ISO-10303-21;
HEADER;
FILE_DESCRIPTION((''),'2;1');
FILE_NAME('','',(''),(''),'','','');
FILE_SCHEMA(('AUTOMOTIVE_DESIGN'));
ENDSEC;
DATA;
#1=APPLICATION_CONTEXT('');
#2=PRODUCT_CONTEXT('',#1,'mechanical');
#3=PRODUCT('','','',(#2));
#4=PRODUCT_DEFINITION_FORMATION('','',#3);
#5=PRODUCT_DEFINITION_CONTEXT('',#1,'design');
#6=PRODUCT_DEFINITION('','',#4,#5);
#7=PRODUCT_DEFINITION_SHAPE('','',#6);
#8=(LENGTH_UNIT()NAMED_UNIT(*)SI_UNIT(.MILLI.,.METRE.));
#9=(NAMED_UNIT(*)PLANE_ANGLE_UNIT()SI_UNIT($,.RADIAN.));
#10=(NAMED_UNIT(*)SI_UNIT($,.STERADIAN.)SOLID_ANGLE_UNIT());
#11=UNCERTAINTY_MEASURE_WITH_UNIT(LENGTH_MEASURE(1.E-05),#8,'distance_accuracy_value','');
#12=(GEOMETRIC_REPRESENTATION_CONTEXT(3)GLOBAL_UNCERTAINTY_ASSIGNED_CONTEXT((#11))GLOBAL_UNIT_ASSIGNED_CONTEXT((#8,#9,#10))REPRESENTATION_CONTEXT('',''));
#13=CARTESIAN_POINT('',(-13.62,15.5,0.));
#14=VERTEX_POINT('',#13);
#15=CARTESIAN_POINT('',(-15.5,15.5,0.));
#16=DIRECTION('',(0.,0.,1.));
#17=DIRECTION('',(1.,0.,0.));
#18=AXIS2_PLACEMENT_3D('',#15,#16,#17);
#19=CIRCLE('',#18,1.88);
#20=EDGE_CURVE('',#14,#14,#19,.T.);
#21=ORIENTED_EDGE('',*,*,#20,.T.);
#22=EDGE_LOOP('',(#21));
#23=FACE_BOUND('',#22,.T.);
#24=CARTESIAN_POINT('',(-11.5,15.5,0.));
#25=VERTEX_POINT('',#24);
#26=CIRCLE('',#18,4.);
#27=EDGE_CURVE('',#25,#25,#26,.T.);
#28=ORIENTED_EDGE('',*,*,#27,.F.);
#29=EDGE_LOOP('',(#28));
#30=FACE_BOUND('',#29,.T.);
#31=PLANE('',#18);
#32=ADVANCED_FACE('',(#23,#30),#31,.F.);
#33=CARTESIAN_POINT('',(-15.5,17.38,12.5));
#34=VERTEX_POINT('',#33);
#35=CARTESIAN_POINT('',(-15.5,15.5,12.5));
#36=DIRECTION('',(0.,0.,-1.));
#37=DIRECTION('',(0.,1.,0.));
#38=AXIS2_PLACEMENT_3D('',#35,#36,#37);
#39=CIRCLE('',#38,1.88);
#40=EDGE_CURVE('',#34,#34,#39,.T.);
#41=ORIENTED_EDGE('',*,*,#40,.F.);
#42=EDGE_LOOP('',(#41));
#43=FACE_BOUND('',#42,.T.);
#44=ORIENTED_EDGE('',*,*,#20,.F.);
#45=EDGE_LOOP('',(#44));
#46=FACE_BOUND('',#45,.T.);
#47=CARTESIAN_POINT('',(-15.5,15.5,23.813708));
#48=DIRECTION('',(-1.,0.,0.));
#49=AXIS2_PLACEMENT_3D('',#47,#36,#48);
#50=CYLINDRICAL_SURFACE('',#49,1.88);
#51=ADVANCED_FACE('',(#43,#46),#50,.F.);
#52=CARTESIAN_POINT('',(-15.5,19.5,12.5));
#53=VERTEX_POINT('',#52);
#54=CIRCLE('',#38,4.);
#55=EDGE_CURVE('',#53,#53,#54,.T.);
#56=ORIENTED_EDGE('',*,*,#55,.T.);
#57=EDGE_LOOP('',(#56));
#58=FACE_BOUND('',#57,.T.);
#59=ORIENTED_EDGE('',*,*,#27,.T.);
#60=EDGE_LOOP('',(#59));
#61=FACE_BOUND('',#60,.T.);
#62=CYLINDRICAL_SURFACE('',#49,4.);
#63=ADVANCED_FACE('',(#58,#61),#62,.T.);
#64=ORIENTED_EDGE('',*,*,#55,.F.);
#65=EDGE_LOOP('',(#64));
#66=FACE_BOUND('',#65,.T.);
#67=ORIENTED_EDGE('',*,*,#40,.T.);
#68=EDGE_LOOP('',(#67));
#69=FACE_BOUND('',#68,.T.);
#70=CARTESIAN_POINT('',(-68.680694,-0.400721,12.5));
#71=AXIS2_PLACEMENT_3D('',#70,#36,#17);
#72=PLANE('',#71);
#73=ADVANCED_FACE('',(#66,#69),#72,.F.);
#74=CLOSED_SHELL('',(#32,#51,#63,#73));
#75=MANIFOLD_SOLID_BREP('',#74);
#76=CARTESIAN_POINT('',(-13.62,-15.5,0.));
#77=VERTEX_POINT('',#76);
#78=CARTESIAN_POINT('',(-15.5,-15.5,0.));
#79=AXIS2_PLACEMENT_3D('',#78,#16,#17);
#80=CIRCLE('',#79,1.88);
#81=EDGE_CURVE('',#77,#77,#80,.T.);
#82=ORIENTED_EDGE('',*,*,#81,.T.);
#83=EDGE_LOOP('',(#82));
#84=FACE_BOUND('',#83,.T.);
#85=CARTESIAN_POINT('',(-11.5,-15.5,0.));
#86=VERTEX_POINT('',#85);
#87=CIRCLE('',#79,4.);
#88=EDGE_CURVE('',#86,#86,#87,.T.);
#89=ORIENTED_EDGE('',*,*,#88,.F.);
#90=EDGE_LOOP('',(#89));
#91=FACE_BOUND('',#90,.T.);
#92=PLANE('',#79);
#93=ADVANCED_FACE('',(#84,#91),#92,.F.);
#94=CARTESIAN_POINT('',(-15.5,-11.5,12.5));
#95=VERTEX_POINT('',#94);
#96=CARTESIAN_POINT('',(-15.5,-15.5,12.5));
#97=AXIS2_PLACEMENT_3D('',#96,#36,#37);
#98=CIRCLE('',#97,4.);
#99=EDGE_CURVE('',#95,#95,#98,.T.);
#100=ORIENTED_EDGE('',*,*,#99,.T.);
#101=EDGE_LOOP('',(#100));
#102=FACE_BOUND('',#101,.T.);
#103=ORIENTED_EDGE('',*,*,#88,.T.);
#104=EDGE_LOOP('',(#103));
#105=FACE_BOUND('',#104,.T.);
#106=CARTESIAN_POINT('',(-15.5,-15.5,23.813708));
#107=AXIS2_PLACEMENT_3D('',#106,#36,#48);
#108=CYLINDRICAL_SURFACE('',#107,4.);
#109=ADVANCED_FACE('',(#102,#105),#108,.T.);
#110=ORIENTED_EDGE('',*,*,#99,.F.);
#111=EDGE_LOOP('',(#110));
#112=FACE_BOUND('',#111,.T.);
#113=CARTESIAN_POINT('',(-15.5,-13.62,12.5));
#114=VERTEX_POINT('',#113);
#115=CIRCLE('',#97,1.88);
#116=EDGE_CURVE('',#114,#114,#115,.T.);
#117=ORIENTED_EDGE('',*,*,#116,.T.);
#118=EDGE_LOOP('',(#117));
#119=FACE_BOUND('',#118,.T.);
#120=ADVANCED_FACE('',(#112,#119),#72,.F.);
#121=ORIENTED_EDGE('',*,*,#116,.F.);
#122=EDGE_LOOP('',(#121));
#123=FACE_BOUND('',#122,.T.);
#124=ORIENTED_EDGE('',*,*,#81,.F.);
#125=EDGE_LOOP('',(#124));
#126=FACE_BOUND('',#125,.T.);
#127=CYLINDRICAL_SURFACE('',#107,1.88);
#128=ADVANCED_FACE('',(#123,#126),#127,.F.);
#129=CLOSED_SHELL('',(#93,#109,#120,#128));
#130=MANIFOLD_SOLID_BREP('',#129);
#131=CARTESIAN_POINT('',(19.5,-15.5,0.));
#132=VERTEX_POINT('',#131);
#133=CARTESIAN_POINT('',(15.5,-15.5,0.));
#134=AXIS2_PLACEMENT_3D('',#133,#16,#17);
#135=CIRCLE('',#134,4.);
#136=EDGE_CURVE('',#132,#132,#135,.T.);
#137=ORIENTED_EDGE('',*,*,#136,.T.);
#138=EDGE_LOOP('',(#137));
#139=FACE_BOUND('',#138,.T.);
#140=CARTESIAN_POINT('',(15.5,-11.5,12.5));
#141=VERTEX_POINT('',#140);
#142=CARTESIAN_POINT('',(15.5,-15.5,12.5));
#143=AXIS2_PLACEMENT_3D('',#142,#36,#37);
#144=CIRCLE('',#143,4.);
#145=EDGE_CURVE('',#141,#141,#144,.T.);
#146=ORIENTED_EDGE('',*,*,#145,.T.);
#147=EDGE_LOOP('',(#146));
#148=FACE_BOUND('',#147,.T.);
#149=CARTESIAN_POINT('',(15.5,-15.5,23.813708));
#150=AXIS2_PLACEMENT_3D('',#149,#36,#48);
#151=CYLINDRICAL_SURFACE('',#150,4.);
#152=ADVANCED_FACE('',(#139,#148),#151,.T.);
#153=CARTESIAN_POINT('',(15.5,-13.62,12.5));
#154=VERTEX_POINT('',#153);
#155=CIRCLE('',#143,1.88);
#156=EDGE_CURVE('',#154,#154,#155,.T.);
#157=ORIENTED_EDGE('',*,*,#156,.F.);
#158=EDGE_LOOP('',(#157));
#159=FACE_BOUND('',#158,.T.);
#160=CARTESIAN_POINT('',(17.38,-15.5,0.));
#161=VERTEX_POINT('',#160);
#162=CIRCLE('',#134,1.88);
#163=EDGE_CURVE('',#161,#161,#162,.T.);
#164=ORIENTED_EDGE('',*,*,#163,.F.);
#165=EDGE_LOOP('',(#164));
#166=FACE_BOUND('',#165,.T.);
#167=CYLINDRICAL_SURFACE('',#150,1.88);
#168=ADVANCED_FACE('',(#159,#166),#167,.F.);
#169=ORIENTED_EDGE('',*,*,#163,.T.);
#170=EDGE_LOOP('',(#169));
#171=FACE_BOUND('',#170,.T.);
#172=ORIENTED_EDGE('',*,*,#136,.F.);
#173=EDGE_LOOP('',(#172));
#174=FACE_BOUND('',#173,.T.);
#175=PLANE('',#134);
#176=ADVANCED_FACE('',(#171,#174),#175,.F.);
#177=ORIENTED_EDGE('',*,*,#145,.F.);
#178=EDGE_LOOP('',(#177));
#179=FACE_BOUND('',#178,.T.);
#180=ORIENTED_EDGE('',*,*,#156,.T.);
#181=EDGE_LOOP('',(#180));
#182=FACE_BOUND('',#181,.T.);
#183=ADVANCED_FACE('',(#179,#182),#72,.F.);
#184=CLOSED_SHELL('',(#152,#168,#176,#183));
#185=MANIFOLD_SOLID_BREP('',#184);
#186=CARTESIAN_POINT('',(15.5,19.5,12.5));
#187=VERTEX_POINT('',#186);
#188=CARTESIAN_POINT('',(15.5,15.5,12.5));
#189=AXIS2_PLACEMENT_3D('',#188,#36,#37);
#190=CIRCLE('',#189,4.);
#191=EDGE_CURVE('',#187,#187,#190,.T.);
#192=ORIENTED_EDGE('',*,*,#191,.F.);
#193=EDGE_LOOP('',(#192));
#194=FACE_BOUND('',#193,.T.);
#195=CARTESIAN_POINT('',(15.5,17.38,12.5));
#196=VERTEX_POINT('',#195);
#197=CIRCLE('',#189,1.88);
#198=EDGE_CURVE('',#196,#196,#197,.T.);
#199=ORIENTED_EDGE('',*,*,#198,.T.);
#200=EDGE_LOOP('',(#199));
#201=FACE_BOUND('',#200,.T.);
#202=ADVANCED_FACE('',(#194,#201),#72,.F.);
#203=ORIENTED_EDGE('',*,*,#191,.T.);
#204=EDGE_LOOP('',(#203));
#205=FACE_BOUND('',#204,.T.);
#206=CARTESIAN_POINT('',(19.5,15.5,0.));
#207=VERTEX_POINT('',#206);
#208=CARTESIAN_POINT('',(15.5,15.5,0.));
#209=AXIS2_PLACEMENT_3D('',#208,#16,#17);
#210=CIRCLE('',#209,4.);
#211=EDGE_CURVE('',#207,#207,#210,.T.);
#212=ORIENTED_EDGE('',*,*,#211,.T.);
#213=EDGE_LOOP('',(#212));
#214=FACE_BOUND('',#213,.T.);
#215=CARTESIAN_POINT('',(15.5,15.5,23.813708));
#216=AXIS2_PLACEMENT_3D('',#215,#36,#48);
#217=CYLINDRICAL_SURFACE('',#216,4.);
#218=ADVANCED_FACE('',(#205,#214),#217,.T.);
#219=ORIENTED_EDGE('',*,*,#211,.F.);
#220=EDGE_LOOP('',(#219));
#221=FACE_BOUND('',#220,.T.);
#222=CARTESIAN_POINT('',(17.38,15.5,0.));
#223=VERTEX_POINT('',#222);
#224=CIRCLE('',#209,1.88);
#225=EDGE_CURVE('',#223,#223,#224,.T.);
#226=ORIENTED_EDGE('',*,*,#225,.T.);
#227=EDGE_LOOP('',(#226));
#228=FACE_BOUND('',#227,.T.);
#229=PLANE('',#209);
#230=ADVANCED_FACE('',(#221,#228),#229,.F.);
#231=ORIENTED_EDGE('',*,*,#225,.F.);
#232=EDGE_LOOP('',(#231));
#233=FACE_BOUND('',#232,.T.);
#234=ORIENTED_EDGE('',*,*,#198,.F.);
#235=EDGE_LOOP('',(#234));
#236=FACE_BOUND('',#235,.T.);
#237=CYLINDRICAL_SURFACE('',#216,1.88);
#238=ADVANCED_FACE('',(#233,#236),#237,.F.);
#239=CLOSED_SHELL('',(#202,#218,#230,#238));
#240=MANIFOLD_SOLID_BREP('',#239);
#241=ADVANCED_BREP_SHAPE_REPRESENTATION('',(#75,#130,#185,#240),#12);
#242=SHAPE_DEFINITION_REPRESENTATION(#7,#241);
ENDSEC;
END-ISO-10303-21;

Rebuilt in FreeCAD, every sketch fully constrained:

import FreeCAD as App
import Part
import Sketcher
from FreeCAD import Vector

doc = App.newDocument("Part")
params = doc.addObject("Spreadsheet::Sheet", "Params")
for row, (alias, value) in enumerate([
    ("sketch1_diameter", "8 mm"),
    ("sketch1_diameter2", "3.76 mm"),
    ("pad1_length", "12.5 mm"),
    ("sketch2_diameter", "8 mm"),
    ("sketch2_diameter2", "3.76 mm"),
    ("pad2_length", "12.5 mm"),
    ("sketch3_diameter", "8 mm"),
    ("sketch3_diameter2", "3.76 mm"),
    ("pad3_length", "12.5 mm"),
    ("sketch4_diameter", "8 mm"),
    ("sketch4_diameter2", "3.76 mm"),
    ("pad4_length", "12.5 mm"),
], start=1):
    params.set(f"A{row}", alias)
    params.set(f"B{row}", "=" + value)
    params.setAlias(f"B{row}", alias)

body = doc.addObject("PartDesign::Body", "Body")

sketch1 = body.newObject("Sketcher::SketchObject", "Sketch")
sketch1.AttachmentSupport = (doc.getObject("XY_Plane"), [""])
sketch1.MapMode = "FlatFace"
sketch1.addGeometry([
    Part.Circle(Vector(15.5, 15.5, 0), Vector(0, 0, 1), 4),
    Part.Circle(Vector(15.5, 15.5, 0), Vector(0, 0, 1), 1.9),
], False)
sketch1.addConstraint([
    Sketcher.Constraint("Coincident", 1, 3, 0, 3),
    Sketcher.Constraint("Diameter", 0, 8.0),
    Sketcher.Constraint("Diameter", 1, 3.76),
    Sketcher.Constraint("DistanceX", -1, 1, 0, 3, 15.5),
    Sketcher.Constraint("DistanceY", -1, 1, 0, 3, 15.5),
])
sketch1.setExpression("Constraints[1]", "Params.sketch1_diameter")
sketch1.setExpression("Constraints[2]", "Params.sketch1_diameter2")
pad1 = body.newObject("PartDesign::Pad", "Pad")
pad1.Profile = sketch1
pad1.setExpression("Length", "Params.pad1_length")
body2 = doc.addObject("PartDesign::Body", "Body001")

sketch2 = body2.newObject("Sketcher::SketchObject", "Sketch001")
sketch2.AttachmentSupport = (doc.getObject("XY_Plane001"), [""])
sketch2.MapMode = "FlatFace"
sketch2.addGeometry([
    Part.Circle(Vector(15.5, -15.5, 0), Vector(0, 0, 1), 4),
    Part.Circle(Vector(15.5, -15.5, 0), Vector(0, 0, 1), 1.9),
], False)
sketch2.addConstraint([
    Sketcher.Constraint("Coincident", 1, 3, 0, 3),
    Sketcher.Constraint("Diameter", 0, 8.0),
    Sketcher.Constraint("Diameter", 1, 3.76),
    Sketcher.Constraint("DistanceX", -1, 1, 0, 3, 15.5),
    Sketcher.Constraint("DistanceY", 0, 3, -1, 1, 15.5),
])
sketch2.setExpression("Constraints[1]", "Params.sketch2_diameter")
sketch2.setExpression("Constraints[2]", "Params.sketch2_diameter2")
pad2 = body2.newObject("PartDesign::Pad", "Pad001")
pad2.Profile = sketch2
pad2.setExpression("Length", "Params.pad2_length")
body3 = doc.addObject("PartDesign::Body", "Body002")

sketch3 = body3.newObject("Sketcher::SketchObject", "Sketch002")
sketch3.AttachmentSupport = (doc.getObject("XY_Plane002"), [""])
sketch3.MapMode = "FlatFace"
sketch3.addGeometry([
    Part.Circle(Vector(-15.5, -15.5, 0), Vector(0, 0, 1), 4),
    Part.Circle(Vector(-15.5, -15.5, 0), Vector(0, 0, 1), 1.9),
], False)
sketch3.addConstraint([
    Sketcher.Constraint("Coincident", 1, 3, 0, 3),
    Sketcher.Constraint("Diameter", 0, 8.0),
    Sketcher.Constraint("Diameter", 1, 3.76),
    Sketcher.Constraint("DistanceX", 0, 3, -1, 1, 15.5),
    Sketcher.Constraint("DistanceY", 0, 3, -1, 1, 15.5),
])
sketch3.setExpression("Constraints[1]", "Params.sketch3_diameter")
sketch3.setExpression("Constraints[2]", "Params.sketch3_diameter2")
pad3 = body3.newObject("PartDesign::Pad", "Pad002")
pad3.Profile = sketch3
pad3.setExpression("Length", "Params.pad3_length")
body4 = doc.addObject("PartDesign::Body", "Body003")

sketch4 = body4.newObject("Sketcher::SketchObject", "Sketch003")
sketch4.AttachmentSupport = (doc.getObject("XY_Plane003"), [""])
sketch4.MapMode = "FlatFace"
sketch4.addGeometry([
    Part.Circle(Vector(-15.5, 15.5, 0), Vector(0, 0, 1), 4),
    Part.Circle(Vector(-15.5, 15.5, 0), Vector(0, 0, 1), 1.9),
], False)
sketch4.addConstraint([
    Sketcher.Constraint("Coincident", 1, 3, 0, 3),
    Sketcher.Constraint("Diameter", 0, 8.0),
    Sketcher.Constraint("Diameter", 1, 3.76),
    Sketcher.Constraint("DistanceX", 0, 3, -1, 1, 15.5),
    Sketcher.Constraint("DistanceY", -1, 1, 0, 3, 15.5),
])
sketch4.setExpression("Constraints[1]", "Params.sketch4_diameter")
sketch4.setExpression("Constraints[2]", "Params.sketch4_diameter2")
pad4 = body4.newObject("PartDesign::Pad", "Pad003")
pad4.Profile = sketch4
pad4.setExpression("Length", "Params.pad4_length")

doc.recompute()
